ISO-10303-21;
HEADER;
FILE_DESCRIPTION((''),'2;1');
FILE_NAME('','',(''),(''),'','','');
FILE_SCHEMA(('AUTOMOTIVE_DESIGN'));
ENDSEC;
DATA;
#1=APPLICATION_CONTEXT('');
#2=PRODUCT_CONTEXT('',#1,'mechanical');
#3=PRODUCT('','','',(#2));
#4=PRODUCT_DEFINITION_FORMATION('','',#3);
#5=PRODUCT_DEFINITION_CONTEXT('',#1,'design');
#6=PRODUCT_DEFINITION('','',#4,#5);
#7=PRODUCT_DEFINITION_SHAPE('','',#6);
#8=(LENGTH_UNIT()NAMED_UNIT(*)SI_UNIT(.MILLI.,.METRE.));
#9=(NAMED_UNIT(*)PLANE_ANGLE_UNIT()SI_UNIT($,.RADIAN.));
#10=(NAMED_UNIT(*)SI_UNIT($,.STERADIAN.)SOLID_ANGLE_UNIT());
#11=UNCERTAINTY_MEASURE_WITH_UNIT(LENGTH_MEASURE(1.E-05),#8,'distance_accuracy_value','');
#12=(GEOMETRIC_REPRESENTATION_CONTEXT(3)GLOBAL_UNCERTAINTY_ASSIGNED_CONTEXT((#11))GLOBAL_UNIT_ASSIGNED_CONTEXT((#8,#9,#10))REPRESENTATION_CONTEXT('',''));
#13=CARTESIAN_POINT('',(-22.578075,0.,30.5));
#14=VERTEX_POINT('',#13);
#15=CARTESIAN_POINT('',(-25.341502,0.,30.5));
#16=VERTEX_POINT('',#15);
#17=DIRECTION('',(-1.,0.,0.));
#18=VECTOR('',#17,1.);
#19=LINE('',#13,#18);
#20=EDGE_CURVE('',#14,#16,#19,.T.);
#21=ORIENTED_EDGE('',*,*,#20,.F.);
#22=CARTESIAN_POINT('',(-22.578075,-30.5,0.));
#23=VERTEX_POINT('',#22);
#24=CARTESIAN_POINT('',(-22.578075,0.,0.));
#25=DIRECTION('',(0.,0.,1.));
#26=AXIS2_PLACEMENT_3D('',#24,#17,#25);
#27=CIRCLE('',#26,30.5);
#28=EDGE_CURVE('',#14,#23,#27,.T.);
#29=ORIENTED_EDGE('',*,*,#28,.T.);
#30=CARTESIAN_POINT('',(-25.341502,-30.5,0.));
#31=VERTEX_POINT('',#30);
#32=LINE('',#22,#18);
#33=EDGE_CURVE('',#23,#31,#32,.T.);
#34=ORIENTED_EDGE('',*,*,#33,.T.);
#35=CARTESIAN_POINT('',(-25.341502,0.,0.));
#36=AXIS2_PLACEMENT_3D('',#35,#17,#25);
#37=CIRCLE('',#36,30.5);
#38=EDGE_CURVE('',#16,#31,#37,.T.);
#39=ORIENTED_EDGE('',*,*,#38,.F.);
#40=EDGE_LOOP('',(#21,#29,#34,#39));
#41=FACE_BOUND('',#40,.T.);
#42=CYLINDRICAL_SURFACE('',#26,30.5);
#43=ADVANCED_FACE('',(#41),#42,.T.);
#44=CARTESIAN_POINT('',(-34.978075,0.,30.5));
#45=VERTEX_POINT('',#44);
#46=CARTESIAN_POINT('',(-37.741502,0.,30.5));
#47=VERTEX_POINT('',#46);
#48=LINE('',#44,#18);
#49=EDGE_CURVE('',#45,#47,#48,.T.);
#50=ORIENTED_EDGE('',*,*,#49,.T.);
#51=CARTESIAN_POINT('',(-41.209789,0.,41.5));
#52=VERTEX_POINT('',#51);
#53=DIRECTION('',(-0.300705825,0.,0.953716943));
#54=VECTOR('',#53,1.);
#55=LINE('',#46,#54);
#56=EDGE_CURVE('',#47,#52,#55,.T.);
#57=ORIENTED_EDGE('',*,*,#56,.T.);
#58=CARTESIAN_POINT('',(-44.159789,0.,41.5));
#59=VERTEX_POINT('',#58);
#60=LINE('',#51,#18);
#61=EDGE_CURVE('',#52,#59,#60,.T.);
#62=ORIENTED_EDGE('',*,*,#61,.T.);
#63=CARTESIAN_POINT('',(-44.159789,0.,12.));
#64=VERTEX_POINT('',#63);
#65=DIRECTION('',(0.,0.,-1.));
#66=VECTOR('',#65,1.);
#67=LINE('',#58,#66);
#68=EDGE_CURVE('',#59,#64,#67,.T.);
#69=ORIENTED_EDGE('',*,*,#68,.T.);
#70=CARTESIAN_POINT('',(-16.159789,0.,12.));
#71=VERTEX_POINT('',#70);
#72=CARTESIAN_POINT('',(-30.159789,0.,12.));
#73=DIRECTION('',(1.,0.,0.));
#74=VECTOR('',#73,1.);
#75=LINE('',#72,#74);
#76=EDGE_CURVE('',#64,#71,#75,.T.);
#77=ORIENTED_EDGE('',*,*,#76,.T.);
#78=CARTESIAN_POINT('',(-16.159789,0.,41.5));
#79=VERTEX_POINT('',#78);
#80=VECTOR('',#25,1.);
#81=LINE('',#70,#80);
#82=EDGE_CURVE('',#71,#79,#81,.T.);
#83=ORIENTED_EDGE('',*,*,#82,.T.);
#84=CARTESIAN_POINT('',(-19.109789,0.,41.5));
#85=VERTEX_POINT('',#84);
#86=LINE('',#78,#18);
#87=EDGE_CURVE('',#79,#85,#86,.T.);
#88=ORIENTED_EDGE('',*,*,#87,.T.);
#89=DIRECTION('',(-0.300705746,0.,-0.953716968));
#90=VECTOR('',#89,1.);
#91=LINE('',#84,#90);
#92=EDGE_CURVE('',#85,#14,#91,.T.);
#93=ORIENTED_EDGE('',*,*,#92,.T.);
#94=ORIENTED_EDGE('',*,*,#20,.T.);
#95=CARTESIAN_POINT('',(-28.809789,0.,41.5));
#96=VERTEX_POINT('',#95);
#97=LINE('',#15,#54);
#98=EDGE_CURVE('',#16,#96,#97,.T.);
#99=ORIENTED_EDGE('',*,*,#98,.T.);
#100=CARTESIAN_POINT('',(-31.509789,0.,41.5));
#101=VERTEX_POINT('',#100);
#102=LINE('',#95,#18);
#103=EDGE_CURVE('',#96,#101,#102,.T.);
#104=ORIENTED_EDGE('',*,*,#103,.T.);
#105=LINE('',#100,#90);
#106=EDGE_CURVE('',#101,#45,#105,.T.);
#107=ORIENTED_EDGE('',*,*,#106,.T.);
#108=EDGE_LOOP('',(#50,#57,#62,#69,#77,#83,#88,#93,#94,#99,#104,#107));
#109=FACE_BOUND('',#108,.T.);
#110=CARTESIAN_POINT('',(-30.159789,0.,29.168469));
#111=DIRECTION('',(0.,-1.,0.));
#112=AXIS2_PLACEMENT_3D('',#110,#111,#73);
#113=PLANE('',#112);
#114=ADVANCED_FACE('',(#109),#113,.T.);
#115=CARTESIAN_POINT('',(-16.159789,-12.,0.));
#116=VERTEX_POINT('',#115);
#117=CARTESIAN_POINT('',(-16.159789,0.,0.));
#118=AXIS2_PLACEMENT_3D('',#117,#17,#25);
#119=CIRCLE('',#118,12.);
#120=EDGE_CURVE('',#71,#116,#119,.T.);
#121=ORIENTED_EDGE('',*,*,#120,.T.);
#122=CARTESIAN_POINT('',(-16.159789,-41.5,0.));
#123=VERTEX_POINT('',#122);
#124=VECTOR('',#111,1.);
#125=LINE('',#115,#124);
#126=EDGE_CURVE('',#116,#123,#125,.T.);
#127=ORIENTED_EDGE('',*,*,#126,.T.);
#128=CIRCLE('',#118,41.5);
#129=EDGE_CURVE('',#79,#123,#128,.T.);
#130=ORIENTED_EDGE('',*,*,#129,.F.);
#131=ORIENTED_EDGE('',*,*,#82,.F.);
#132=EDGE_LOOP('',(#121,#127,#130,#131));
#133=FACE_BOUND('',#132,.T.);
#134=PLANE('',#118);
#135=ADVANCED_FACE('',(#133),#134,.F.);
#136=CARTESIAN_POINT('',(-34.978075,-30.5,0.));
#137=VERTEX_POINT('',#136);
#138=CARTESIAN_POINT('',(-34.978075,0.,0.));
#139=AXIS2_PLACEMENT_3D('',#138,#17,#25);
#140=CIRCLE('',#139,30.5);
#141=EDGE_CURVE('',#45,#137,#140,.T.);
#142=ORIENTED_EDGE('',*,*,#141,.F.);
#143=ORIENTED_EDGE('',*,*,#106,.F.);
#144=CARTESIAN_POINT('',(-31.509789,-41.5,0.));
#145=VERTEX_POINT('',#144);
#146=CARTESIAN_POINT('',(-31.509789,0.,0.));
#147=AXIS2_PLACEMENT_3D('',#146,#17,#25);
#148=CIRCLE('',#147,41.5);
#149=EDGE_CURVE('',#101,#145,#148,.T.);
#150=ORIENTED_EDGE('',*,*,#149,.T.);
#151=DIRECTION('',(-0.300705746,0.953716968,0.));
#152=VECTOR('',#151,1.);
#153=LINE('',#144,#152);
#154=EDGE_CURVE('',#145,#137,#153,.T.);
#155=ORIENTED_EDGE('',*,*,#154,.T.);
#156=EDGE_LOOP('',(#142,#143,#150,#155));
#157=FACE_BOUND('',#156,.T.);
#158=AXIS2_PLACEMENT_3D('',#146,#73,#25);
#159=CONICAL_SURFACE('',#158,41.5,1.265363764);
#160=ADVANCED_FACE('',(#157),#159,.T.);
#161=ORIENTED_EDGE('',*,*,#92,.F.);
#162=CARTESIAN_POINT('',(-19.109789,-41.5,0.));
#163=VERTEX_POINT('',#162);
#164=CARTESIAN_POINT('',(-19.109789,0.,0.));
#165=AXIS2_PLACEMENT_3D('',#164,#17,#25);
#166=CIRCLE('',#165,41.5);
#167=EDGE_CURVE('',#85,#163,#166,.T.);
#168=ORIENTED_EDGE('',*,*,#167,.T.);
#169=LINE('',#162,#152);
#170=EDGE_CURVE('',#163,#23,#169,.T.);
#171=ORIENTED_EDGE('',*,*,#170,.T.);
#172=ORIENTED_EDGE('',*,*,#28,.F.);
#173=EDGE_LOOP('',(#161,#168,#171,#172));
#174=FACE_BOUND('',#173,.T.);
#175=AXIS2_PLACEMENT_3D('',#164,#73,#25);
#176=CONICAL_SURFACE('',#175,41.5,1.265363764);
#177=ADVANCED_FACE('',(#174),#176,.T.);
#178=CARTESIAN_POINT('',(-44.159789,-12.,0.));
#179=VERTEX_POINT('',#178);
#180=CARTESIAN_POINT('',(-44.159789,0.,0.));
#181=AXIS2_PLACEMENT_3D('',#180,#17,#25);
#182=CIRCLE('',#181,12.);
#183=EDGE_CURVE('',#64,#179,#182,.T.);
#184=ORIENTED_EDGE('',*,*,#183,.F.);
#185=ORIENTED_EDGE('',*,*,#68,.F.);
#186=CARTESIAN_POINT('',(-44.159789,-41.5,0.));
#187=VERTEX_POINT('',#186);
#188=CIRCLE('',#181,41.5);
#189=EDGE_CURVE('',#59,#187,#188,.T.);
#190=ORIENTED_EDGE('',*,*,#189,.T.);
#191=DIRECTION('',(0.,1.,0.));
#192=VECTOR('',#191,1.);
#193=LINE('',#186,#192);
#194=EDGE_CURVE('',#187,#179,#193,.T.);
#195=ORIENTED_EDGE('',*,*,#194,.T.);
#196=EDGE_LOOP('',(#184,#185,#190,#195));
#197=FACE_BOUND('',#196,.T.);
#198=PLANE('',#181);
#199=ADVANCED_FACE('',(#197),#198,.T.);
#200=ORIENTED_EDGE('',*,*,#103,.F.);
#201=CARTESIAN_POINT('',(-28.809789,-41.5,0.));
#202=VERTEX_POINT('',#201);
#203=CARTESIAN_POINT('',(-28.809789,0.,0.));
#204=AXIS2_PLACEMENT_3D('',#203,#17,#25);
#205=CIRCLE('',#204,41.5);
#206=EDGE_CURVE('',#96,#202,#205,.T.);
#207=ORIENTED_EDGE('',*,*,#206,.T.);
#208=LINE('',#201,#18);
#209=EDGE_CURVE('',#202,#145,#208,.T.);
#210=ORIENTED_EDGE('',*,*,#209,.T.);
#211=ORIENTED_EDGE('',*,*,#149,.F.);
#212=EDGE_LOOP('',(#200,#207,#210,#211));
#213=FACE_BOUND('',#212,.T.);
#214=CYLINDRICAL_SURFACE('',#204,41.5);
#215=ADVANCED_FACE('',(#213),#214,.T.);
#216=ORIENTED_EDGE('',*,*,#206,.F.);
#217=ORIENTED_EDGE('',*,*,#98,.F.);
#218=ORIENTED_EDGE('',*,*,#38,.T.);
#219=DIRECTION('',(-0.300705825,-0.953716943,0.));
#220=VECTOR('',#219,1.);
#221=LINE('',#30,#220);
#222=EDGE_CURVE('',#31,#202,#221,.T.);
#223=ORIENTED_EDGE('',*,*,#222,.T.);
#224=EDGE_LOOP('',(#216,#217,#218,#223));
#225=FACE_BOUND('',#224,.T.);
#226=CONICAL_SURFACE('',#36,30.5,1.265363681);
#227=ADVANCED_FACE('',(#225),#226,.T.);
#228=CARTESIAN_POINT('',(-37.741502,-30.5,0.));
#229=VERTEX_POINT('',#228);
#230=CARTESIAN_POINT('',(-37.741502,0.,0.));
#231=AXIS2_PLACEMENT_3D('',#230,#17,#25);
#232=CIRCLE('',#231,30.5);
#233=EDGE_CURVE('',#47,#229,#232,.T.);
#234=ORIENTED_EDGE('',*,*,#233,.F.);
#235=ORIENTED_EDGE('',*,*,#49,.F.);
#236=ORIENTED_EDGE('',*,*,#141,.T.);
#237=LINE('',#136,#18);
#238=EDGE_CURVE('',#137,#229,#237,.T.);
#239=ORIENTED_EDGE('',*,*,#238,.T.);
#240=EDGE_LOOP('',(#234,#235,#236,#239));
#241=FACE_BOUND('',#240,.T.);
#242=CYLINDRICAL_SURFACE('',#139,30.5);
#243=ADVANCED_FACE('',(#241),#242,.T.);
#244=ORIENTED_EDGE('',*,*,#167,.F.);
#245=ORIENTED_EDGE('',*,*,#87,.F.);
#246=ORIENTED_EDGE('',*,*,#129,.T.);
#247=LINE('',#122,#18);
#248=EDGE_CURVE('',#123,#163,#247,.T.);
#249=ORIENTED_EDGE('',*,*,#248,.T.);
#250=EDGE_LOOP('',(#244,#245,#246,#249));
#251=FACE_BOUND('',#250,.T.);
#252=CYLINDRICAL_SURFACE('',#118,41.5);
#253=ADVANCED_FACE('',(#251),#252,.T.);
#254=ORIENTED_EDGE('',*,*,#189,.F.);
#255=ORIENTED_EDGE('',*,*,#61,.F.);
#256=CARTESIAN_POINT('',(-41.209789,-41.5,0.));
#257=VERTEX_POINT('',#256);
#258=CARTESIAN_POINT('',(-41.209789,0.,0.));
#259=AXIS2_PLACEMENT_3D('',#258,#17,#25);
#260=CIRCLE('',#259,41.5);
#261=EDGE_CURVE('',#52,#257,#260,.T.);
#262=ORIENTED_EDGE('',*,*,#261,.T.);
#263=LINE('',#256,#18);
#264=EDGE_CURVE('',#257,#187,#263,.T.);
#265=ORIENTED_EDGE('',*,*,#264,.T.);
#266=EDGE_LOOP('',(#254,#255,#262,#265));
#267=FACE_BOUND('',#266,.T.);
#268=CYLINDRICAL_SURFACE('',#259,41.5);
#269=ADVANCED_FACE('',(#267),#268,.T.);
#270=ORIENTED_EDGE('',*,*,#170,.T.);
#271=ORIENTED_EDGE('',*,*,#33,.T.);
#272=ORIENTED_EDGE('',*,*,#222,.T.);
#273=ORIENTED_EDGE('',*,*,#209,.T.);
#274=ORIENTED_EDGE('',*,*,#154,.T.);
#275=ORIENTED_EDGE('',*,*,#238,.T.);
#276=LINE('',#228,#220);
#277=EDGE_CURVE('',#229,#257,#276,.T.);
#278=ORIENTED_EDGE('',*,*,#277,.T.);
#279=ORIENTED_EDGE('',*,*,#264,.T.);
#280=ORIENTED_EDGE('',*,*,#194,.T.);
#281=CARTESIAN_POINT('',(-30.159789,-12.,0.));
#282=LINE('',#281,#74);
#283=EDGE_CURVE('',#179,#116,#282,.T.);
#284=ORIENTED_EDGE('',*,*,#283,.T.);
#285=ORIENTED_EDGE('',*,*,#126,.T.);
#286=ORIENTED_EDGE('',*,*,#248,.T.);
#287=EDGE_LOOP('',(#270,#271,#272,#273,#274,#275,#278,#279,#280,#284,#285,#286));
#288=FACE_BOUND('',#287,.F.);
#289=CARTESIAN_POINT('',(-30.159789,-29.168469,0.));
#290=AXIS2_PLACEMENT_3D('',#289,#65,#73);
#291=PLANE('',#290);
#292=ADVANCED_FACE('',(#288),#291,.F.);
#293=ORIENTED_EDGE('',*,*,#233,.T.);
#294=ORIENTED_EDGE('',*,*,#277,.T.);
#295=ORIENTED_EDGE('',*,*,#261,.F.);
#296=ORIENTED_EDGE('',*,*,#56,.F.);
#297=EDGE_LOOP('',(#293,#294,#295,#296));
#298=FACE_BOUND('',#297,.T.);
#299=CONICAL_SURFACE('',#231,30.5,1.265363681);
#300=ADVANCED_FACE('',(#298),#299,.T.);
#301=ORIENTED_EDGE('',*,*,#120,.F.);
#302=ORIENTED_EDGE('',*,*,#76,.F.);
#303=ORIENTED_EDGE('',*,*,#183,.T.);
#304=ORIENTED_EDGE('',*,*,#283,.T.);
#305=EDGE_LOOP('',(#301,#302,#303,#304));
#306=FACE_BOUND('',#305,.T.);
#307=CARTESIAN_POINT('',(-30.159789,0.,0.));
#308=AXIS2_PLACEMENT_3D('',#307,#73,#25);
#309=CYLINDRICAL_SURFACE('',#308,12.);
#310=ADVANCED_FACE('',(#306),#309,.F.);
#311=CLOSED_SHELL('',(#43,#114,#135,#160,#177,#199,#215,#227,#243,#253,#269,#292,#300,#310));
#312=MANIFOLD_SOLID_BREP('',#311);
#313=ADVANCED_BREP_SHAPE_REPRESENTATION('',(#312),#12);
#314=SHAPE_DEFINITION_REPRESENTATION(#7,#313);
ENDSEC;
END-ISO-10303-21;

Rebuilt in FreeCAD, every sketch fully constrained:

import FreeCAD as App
import Part
import Sketcher
from FreeCAD import Vector
Q = App.Units.Quantity

doc = App.newDocument("Part")
body = doc.addObject("PartDesign::Body", "Body")

# Sketch on XZ plane
sketch1 = doc.addObject("Sketcher::SketchObject", "Sketch")
body.addObject(sketch1)
sketch1.AttachmentSupport = (doc.XZ_Plane, [""])
sketch1.MapMode = "FlatFace"
sketch1.addGeometry([
    Part.LineSegment(Vector(-44.2, 41.5, 0), Vector(-44.2, 12, 0)),  # 0
    Part.LineSegment(Vector(-44.2, 12, 0), Vector(-16.2, 12, 0)),  # 1
    Part.LineSegment(Vector(-16.2, 12, 0), Vector(-16.2, 41.5, 0)),  # 2
    Part.LineSegment(Vector(-16.2, 41.5, 0), Vector(-19.1, 41.5, 0)),  # 3
    Part.LineSegment(Vector(-19.1, 41.5, 0), Vector(-22.6, 30.5, 0)),  # 4
    Part.LineSegment(Vector(-22.6, 30.5, 0), Vector(-25.3, 30.5, 0)),  # 5
    Part.LineSegment(Vector(-25.3, 30.5, 0), Vector(-28.8, 41.5, 0)),  # 6
    Part.LineSegment(Vector(-28.8, 41.5, 0), Vector(-31.5, 41.5, 0)),  # 7
    Part.LineSegment(Vector(-31.5, 41.5, 0), Vector(-35, 30.5, 0)),  # 8
    Part.LineSegment(Vector(-35, 30.5, 0), Vector(-37.7, 30.5, 0)),  # 9
    Part.LineSegment(Vector(-37.7, 30.5, 0), Vector(-41.2, 41.5, 0)),  # 10
    Part.LineSegment(Vector(-41.2, 41.5, 0), Vector(-44.2, 41.5, 0)),  # 11
], False)
sketch1.addConstraint([
    Sketcher.Constraint("Coincident", 0, 2, 1, 1),
    Sketcher.Constraint("Coincident", 1, 2, 2, 1),
    Sketcher.Constraint("Coincident", 2, 2, 3, 1),
    Sketcher.Constraint("Coincident", 3, 2, 4, 1),
    Sketcher.Constraint("Coincident", 4, 2, 5, 1),
    Sketcher.Constraint("Coincident", 5, 2, 6, 1),
    Sketcher.Constraint("Coincident", 6, 2, 7, 1),
    Sketcher.Constraint("Coincident", 7, 2, 8, 1),
    Sketcher.Constraint("Coincident", 8, 2, 9, 1),
    Sketcher.Constraint("Coincident", 9, 2, 10, 1),
    Sketcher.Constraint("Coincident", 10, 2, 11, 1),
    Sketcher.Constraint("Coincident", 11, 2, 0, 1),
    Sketcher.Constraint("Vertical", 0),
    Sketcher.Constraint("Horizontal", 1),
    Sketcher.Constraint("Vertical", 2),
    Sketcher.Constraint("Horizontal", 3),
    Sketcher.Constraint("Horizontal", 5),
    Sketcher.Constraint("Horizontal", 7),
    Sketcher.Constraint("Horizontal", 9),
    Sketcher.Constraint("Horizontal", 11),
    Sketcher.Constraint("Parallel", 4, 8),
    Sketcher.Constraint("Parallel", 6, 10),
    Sketcher.Constraint("Horizontal", 3, 2, 6, 2),
    Sketcher.Constraint("Horizontal", 5, 2, 8, 2),
    Sketcher.Constraint("Horizontal", 7, 2, 10, 2),
    Sketcher.Constraint("Equal", 5, 9),
    Sketcher.Constraint("Equal", 3, 11),
    Sketcher.Constraint("Equal", 4, 6),
    Sketcher.Constraint("DistanceX", 1, 1, 1, 2, Q("28 mm")),
    Sketcher.Constraint("DistanceX", 7, 2, 7, 1, Q("2.7 mm")),
    Sketcher.Constraint("DistanceY", 0, 2, 0, 1, Q("29.5 mm")),
    Sketcher.Constraint("DistanceY", -1, 1, 0, 2, Q("12 mm")),
    Sketcher.Constraint("Angle", 4, Q("-107.499997 deg")),
    Sketcher.Constraint("DistanceY", 4, 2, 3, 2, Q("11 mm")),
    Sketcher.Constraint("DistanceX", 3, 2, 3, 1, Q("2.95 mm")),
    Sketcher.Constraint("DistanceX", 5, 2, -1, 1, Q("25.341502 mm")),
])
revolution = doc.addObject("PartDesign::Revolution", "Revolution")
body.addObject(revolution)
revolution.Profile = sketch1
revolution.ReferenceAxis = (sketch1, ["H_Axis"])
revolution.Angle = 270
revolution.Reversed = True

doc.recompute()
